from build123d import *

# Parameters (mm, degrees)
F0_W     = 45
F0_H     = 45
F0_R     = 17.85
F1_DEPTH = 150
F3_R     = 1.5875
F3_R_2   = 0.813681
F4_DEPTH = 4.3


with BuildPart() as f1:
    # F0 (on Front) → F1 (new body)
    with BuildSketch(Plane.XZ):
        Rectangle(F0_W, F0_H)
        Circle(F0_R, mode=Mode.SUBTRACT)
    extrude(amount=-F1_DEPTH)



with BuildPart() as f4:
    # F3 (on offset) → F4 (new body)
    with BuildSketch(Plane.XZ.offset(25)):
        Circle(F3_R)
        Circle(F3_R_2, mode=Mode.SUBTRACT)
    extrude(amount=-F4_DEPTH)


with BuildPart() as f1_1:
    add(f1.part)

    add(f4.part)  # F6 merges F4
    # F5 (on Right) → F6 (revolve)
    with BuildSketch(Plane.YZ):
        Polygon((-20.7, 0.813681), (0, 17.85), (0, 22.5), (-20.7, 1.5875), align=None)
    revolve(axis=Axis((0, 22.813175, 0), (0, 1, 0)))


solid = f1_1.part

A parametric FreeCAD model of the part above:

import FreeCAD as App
import Part
import Sketcher
Q = App.Units.Quantity

doc = App.newDocument("Part")
body = doc.addObject("PartDesign::Body", "Body")

sketch1 = body.newObject("Sketcher::SketchObject", "Sketch")
sketch1.AttachmentSupport = (doc.getObject("XZ_Plane"), [""])
sketch1.MapMode = "FlatFace"
sketch1.addGeometry([
    Part.LineSegment(App.Vector(-22, 22, 0), App.Vector(-22, -22, 0)),
    Part.LineSegment(App.Vector(-22, -22, 0), App.Vector(22, -22, 0)),
    Part.LineSegment(App.Vector(22, -22, 0), App.Vector(22, 22, 0)),
    Part.LineSegment(App.Vector(22, 22, 0), App.Vector(-22, 22, 0)),
    Part.Circle(App.Vector(0, 0, 0), App.Vector(0, 0, 1), 18),
], False)
sketch1.addConstraint([
    Sketcher.Constraint("Coincident", 0, 2, 1, 1),
    Sketcher.Constraint("Coincident", 1, 2, 2, 1),
    Sketcher.Constraint("Coincident", 2, 2, 3, 1),
    Sketcher.Constraint("Coincident", 3, 2, 0, 1),
    Sketcher.Constraint("Vertical", 0),
    Sketcher.Constraint("Horizontal", 1),
    Sketcher.Constraint("Vertical", 2),
    Sketcher.Constraint("Horizontal", 3),
    Sketcher.Constraint("Coincident", 4, 3, -1, 1),
    Sketcher.Constraint("Symmetric", 0, 2, 2, 2, -1, 1),
    Sketcher.Constraint("Equal", 3, 0),
    Sketcher.Constraint("Diameter", 4, Q("35.7 mm")),
    Sketcher.Constraint("DistanceX", 1, 1, 1, 2, Q("45 mm")),
])
pad1 = body.newObject("PartDesign::Pad", "Pad")
pad1.Profile = sketch1
pad1.Length = 150
pad1.Reversed = True
body2 = doc.addObject("PartDesign::Body", "Body001")

sketch2 = body2.newObject("Sketcher::SketchObject", "Sketch001")
sketch2.AttachmentSupport = (doc.getObject("XZ_Plane001"), [""])
sketch2.MapMode = "FlatFace"
sketch2.AttachmentOffset = App.Placement(App.Vector(0, 0, 25), App.Rotation())
sketch2.addGeometry([
    Part.Circle(App.Vector(0, 0, 0), App.Vector(0, 0, 1), 1.6),
    Part.Circle(App.Vector(0, 0, 0), App.Vector(0, 0, 1), 0.8),
], False)
sketch2.addConstraint([
    Sketcher.Constraint("Coincident", 0, 3, -1, 1),
    Sketcher.Constraint("Coincident", 1, 3, -1, 1),
    Sketcher.Constraint("Diameter", 0, Q("3.175 mm")),
    Sketcher.Constraint("Diameter", 1, Q("1.627362 mm")),
])
pad2 = body2.newObject("PartDesign::Pad", "Pad001")
pad2.Profile = sketch2
pad2.Length = 4.3
pad2.Reversed = True
body.AllowCompound = True
doc.recompute()

boolean = body.newObject("PartDesign::Boolean", "Boolean")
boolean.Type = "Fuse"
boolean.addObjects([body2])

sketch3 = body.newObject("Sketcher::SketchObject", "Sketch002")
sketch3.AttachmentSupport = (doc.getObject("YZ_Plane"), [""])
sketch3.MapMode = "FlatFace"
sketch3.addGeometry([
    Part.LineSegment(App.Vector(-20.7, 0.8, 0), App.Vector(0, 17.9, 0)),
    Part.LineSegment(App.Vector(0, 17.9, 0), App.Vector(0, 22.5, 0)),
    Part.LineSegment(App.Vector(0, 22.5, 0), App.Vector(-20.7, 1.6, 0)),
    Part.LineSegment(App.Vector(-20.7, 1.6, 0), App.Vector(-20.7, 0.8, 0)),
], False)
sketch3.addConstraint([
    Sketcher.Constraint("Coincident", 0, 2, 1, 1),
    Sketcher.Constraint("Coincident", 1, 2, 2, 1),
    Sketcher.Constraint("Coincident", 2, 2, 3, 1),
    Sketcher.Constraint("Coincident", 3, 2, 0, 1),
    Sketcher.Constraint("Vertical", 1),
    Sketcher.Constraint("Vertical", 3),
    Sketcher.Constraint("PointOnObject", 0, 2, -2),
    Sketcher.Constraint("DistanceY", 1, 1, 1, 2, Q("4.65 mm")),
    Sketcher.Constraint("DistanceY", -1, 1, 1, 2, Q("22.5 mm")),
    Sketcher.Constraint("DistanceX", 2, 2, -1, 1, Q("20.7 mm")),
    Sketcher.Constraint("DistanceY", 3, 2, 3, 1, Q("0.773819 mm")),
    Sketcher.Constraint("DistanceY", -1, 1, 2, 2, Q("1.5875 mm")),
])
revolution = body.newObject("PartDesign::Revolution", "Revolution")
revolution.Profile = sketch3
revolution.ReferenceAxis = (sketch3, ["H_Axis"])
revolution.Angle = 360

doc.recompute()
